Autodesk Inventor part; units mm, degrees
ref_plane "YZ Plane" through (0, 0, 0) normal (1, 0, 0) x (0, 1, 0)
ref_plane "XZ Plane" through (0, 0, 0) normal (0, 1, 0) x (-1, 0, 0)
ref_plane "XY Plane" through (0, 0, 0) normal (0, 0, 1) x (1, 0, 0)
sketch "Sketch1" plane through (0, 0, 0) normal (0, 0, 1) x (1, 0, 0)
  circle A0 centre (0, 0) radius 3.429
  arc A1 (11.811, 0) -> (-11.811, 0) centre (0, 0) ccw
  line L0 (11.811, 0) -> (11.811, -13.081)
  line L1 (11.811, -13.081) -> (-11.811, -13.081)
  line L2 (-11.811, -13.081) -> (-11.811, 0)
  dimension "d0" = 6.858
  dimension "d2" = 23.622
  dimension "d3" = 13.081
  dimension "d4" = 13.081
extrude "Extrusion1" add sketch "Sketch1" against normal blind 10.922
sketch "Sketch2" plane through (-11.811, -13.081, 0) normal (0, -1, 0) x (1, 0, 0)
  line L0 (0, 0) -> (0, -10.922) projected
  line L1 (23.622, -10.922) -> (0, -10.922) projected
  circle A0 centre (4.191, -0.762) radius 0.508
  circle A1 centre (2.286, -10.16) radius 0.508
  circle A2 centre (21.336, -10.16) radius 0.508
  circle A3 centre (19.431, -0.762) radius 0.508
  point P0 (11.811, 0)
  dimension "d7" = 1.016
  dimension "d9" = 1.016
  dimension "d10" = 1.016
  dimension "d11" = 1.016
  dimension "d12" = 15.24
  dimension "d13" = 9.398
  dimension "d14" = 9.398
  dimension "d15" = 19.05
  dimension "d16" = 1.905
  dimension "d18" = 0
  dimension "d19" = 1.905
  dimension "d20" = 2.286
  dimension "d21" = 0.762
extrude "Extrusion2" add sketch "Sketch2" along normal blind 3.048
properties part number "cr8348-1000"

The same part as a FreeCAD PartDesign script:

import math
import FreeCAD as App
import Part
import Sketcher
from FreeCAD import Vector
Q = App.Units.Quantity

doc = App.newDocument("Part")
params = doc.addObject("Spreadsheet::Sheet", "Params")
for row, (alias, value) in enumerate([
    ("sketch1_diameter", "0.27 in"),
    ("sketch1_radius", "0.465 in"),
    ("sketch1_height", "0.515 in"),
    ("pad1_length", "0.43 in"),
    ("sketch2_diameter", "0.04 in"),
    ("pad2_length", "0.12 in"),
], start=1):
    params.set(f"A{row}", alias)
    params.set(f"B{row}", "=" + value)
    params.setAlias(f"B{row}", alias)

body = doc.addObject("PartDesign::Body", "Body")

# Sketch on XY plane
sketch1 = body.newObject("Sketcher::SketchObject", "Sketch")
sketch1.AttachmentSupport = (doc.getObject("XY_Plane"), [""])
sketch1.MapMode = "FlatFace"
sketch1.addGeometry([
    Part.LineSegment(Vector(11.8, -13.1, 0), Vector(11.8, 0, 0)),  # 0
    Part.ArcOfCircle(Part.Circle(Vector(0, 0, 0), Vector(0, 0, 1), 11.8), math.radians(0), math.radians(180)),  # 1
    Part.LineSegment(Vector(-11.8, 0, 0), Vector(-11.8, -13.1, 0)),  # 2
    Part.LineSegment(Vector(-11.8, -13.1, 0), Vector(11.8, -13.1, 0)),  # 3
    Part.Circle(Vector(0, 0, 0), Vector(0, 0, 1), 3.4),  # 4
], False)
sketch1.addConstraint([
    Sketcher.Constraint("Tangent", 0, 2, 1, 1),
    Sketcher.Constraint("Tangent", 1, 2, 2, 1),
    Sketcher.Constraint("Coincident", 2, 2, 3, 1),
    Sketcher.Constraint("Coincident", 3, 2, 0, 1),
    Sketcher.Constraint("Vertical", 0),
    Sketcher.Constraint("Vertical", 2),
    Sketcher.Constraint("Horizontal", 3),
    Sketcher.Constraint("Coincident", 1, 3, -1, 1),
    Sketcher.Constraint("Coincident", 4, 3, -1, 1),
    Sketcher.Constraint("Diameter", 4, Q("0.27 in")),
    Sketcher.Constraint("Radius", 1, Q("0.465 in")),
    Sketcher.Constraint("DistanceY", 0, 1, 0, 2, Q("0.515 in")),
])
sketch1.setExpression("Constraints[9]", "Params.sketch1_diameter")
sketch1.setExpression("Constraints[10]", "Params.sketch1_radius")
sketch1.setExpression("Constraints[11]", "Params.sketch1_height")
pad1 = body.newObject("PartDesign::Pad", "Pad")
pad1.Profile = sketch1
pad1.setExpression("Length", "Params.pad1_length")
pad1.Reversed = True

# Sketch on XZ plane
sketch2 = body.newObject("Sketcher::SketchObject", "Sketch001")
sketch2.AttachmentSupport = (doc.getObject("XZ_Plane"), [""])
sketch2.MapMode = "FlatFace"
sketch2.AttachmentOffset = App.Placement(Vector(0, 0, 0.515 * 25.4), App.Rotation())
sketch2.addGeometry([
    Part.Circle(Vector(-7.6, -0.8, 0), Vector(0, 0, 1), 0.5),
    Part.Circle(Vector(-9.5, -10.2, 0), Vector(0, 0, 1), 0.5),
    Part.Circle(Vector(9.5, -10.2, 0), Vector(0, 0, 1), 0.5),
    Part.Circle(Vector(7.6, -0.8, 0), Vector(0, 0, 1), 0.5),
], False)
sketch2.addConstraint([
    Sketcher.Constraint("Equal", 0, 1),
    Sketcher.Constraint("Equal", 1, 2),
    Sketcher.Constraint("Equal", 2, 3),
    Sketcher.Constraint("Symmetric", 1, 3, 2, 3, -2),
    Sketcher.Constraint("Symmetric", 0, 3, 3, 3, -2),
    Sketcher.Constraint("Diameter", 0, Q("0.04 in")),
    Sketcher.Constraint("DistanceX", 0, 3, 3, 3, Q("0.6 in")),
    Sketcher.Constraint("DistanceY", 0, 3, -1, 1, Q("0.03 in")),
    Sketcher.Constraint("DistanceY", 1, 3, 0, 3, Q("0.37 in")),
    Sketcher.Constraint("DistanceX", 1, 3, 2, 3, Q("0.75 in")),
])
sketch2.setExpression("Constraints[5]", "Params.sketch2_diameter")
pad2 = body.newObject("PartDesign::Pad", "Pad001")
pad2.Profile = sketch2
pad2.setExpression("Length", "Params.pad2_length")

doc.recompute()
